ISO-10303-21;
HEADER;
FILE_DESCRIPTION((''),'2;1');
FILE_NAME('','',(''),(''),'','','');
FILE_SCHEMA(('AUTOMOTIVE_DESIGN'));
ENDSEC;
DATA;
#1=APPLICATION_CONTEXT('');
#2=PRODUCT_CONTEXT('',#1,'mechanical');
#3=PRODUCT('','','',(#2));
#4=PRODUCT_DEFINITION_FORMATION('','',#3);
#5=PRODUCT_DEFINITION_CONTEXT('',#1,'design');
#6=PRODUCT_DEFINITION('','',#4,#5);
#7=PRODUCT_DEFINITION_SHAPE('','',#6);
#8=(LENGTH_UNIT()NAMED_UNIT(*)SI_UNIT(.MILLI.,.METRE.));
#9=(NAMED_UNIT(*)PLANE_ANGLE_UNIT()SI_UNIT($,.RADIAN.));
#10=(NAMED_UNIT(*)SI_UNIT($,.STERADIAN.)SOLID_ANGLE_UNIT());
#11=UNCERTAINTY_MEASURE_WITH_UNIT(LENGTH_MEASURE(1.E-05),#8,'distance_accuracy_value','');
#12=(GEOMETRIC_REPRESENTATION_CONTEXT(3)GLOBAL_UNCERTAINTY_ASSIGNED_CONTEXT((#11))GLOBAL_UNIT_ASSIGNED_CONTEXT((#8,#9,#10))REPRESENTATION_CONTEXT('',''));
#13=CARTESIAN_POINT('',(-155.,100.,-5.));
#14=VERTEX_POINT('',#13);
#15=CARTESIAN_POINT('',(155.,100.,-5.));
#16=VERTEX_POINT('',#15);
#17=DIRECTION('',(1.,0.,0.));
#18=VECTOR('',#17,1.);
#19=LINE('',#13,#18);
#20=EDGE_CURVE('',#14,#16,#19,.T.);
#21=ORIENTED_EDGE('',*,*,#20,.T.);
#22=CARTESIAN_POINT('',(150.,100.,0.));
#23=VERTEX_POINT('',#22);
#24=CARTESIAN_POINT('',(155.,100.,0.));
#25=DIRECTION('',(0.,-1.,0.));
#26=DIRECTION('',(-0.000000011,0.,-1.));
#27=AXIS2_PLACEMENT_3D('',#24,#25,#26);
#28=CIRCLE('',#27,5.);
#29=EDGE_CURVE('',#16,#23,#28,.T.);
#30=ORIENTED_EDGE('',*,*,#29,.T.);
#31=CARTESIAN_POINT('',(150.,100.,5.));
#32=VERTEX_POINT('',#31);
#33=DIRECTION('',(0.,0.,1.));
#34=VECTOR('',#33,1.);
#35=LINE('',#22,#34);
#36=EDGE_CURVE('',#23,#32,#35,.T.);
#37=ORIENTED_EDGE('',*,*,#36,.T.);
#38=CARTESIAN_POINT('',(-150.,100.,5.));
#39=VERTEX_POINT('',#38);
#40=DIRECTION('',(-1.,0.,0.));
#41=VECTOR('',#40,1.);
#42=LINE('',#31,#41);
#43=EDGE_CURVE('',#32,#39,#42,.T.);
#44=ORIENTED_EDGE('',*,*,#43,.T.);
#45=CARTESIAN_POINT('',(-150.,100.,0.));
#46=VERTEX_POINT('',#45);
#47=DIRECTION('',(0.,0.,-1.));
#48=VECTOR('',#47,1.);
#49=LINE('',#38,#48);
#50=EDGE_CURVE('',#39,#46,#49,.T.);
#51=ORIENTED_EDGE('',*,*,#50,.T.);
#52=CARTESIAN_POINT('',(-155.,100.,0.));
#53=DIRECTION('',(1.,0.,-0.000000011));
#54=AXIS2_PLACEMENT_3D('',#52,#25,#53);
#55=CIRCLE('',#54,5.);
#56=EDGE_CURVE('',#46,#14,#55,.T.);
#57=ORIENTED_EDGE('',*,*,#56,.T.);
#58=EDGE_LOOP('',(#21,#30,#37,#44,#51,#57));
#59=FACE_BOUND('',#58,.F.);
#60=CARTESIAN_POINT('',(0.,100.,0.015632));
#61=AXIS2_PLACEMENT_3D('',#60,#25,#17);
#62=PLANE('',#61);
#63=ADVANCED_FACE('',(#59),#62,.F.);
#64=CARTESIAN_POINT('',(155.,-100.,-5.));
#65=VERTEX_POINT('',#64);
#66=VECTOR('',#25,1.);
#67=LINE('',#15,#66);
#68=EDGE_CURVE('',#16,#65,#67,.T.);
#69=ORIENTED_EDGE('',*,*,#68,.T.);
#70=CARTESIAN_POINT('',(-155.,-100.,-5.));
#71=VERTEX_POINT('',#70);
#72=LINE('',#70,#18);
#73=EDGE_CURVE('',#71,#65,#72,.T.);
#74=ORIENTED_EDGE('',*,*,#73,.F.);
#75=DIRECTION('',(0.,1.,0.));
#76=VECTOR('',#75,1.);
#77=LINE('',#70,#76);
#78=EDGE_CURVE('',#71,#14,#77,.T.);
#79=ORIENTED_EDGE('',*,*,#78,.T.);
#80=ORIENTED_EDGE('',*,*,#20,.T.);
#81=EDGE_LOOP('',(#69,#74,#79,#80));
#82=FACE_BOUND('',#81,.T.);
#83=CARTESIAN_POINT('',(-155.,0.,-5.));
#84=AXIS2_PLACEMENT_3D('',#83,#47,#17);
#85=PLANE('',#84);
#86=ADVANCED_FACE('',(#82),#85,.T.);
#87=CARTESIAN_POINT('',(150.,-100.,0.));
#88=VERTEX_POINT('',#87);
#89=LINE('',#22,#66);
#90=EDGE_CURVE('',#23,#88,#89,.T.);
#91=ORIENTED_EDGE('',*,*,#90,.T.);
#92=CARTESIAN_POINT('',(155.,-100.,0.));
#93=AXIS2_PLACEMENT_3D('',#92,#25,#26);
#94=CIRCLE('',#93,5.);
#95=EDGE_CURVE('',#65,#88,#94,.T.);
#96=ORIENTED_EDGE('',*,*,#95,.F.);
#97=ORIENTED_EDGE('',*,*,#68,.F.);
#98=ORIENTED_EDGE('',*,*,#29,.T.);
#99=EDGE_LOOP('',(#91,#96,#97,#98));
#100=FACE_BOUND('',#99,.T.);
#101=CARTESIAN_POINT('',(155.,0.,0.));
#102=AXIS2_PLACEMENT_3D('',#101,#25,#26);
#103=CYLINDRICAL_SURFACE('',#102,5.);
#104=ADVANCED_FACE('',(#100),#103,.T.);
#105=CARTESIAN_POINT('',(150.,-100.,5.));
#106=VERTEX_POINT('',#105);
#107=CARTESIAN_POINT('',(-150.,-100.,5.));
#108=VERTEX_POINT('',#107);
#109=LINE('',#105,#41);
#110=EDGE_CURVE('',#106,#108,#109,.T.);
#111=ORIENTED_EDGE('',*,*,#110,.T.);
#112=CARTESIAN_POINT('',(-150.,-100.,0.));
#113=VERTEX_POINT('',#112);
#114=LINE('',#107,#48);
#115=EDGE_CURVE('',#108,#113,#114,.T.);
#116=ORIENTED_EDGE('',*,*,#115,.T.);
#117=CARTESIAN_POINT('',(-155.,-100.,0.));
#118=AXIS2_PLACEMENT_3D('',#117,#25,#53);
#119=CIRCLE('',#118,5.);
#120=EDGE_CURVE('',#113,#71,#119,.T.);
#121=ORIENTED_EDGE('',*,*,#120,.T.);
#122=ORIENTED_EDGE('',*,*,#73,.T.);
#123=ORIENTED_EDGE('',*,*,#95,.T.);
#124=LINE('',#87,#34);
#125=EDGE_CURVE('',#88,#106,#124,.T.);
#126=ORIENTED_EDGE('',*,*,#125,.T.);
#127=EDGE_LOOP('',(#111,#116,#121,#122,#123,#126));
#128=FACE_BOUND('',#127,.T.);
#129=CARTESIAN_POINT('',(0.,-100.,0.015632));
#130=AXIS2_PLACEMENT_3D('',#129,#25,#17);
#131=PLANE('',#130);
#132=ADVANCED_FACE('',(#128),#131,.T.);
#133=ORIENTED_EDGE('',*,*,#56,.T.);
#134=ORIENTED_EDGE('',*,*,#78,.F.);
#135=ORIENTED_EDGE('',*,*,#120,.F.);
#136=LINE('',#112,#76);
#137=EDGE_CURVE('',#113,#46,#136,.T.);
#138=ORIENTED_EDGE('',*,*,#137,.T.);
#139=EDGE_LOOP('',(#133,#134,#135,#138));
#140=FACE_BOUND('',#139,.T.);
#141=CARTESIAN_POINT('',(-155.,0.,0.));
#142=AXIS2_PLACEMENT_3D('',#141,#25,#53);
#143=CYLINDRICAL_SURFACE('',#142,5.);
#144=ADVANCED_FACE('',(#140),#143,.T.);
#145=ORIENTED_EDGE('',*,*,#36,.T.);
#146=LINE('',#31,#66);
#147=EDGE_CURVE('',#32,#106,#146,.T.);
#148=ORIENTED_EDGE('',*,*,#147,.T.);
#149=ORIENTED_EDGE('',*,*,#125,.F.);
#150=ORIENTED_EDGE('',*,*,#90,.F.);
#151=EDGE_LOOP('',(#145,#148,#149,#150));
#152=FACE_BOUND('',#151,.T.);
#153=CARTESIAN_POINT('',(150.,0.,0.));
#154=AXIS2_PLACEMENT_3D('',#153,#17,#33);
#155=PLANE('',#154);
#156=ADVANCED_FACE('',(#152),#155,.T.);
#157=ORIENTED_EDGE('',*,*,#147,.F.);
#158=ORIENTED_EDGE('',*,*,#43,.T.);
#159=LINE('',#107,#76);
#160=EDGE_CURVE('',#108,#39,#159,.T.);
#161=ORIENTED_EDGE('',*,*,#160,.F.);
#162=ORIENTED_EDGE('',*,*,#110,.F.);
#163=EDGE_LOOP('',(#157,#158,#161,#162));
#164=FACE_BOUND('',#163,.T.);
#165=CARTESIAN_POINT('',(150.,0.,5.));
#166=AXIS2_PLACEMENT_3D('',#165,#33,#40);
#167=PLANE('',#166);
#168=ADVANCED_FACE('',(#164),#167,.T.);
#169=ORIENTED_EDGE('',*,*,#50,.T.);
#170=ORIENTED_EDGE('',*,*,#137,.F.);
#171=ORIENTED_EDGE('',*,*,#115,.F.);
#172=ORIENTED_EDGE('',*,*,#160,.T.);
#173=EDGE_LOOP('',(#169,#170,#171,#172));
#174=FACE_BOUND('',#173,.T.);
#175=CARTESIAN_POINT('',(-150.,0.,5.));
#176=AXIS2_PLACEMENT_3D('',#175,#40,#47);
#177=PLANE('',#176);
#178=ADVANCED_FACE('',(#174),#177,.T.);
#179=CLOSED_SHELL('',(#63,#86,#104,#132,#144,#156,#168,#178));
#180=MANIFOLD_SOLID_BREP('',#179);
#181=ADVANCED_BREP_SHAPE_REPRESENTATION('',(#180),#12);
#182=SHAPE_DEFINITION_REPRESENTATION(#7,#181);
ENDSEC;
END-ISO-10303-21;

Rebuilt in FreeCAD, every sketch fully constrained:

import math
import FreeCAD as App
import Part
import Sketcher

doc = App.newDocument("Part")
body = doc.addObject("PartDesign::Body", "Body")

# Sketch on XZ plane
sketch1 = doc.addObject("Sketcher::SketchObject", "Sketch")
body.addObject(sketch1)
sketch1.AttachmentSupport = (doc.XZ_Plane, [""])
sketch1.MapMode = "FlatFace"
sketch1.addGeometry([
    Part.LineSegment(App.Vector(-155, -5, 0), App.Vector(155, -5, 0)),  # 0
    Part.ArcOfCircle(Part.Circle(App.Vector(155, 0, 0), App.Vector(0, 0, 1), 5), math.radians(-90), math.radians(180)),  # 1
    Part.LineSegment(App.Vector(150, 0, 0), App.Vector(150, 5, 0)),  # 2
    Part.LineSegment(App.Vector(150, 5, 0), App.Vector(-150, 5, 0)),  # 3
    Part.LineSegment(App.Vector(-150, 5, 0), App.Vector(-150, 0, 0)),  # 4
    Part.ArcOfCircle(Part.Circle(App.Vector(-155, 0, 0), App.Vector(0, 0, 1), 5), math.radians(0), math.radians(270)),  # 5
], False)
sketch1.addConstraint([
    Sketcher.Constraint("Tangent", 0, 2, 1, 1),
    Sketcher.Constraint("Tangent", 1, 2, 2, 1),
    Sketcher.Constraint("Coincident", 2, 2, 3, 1),
    Sketcher.Constraint("Coincident", 3, 2, 4, 1),
    Sketcher.Constraint("Tangent", 4, 2, 5, 1),
    Sketcher.Constraint("Tangent", 5, 2, 0, 1),
    Sketcher.Constraint("Horizontal", 0),
    Sketcher.Constraint("Vertical", 2),
    Sketcher.Constraint("Horizontal", 3),
    Sketcher.Constraint("Vertical", 4),
    Sketcher.Constraint("Equal", 1, 5),
    Sketcher.Constraint("Symmetric", 1, 3, 5, 3, -1, 1),
    Sketcher.Constraint("Radius", 1, 5.0),
    Sketcher.Constraint("DistanceX", 0, 1, 0, 2, 310.0),
    Sketcher.Constraint("DistanceY", 2, 1, 2, 2, 5.0),
])
pad1 = doc.addObject("PartDesign::Pad", "Pad")
body.addObject(pad1)
pad1.Profile = sketch1
pad1.Length = 200
pad1.Midplane = True

doc.recompute()
